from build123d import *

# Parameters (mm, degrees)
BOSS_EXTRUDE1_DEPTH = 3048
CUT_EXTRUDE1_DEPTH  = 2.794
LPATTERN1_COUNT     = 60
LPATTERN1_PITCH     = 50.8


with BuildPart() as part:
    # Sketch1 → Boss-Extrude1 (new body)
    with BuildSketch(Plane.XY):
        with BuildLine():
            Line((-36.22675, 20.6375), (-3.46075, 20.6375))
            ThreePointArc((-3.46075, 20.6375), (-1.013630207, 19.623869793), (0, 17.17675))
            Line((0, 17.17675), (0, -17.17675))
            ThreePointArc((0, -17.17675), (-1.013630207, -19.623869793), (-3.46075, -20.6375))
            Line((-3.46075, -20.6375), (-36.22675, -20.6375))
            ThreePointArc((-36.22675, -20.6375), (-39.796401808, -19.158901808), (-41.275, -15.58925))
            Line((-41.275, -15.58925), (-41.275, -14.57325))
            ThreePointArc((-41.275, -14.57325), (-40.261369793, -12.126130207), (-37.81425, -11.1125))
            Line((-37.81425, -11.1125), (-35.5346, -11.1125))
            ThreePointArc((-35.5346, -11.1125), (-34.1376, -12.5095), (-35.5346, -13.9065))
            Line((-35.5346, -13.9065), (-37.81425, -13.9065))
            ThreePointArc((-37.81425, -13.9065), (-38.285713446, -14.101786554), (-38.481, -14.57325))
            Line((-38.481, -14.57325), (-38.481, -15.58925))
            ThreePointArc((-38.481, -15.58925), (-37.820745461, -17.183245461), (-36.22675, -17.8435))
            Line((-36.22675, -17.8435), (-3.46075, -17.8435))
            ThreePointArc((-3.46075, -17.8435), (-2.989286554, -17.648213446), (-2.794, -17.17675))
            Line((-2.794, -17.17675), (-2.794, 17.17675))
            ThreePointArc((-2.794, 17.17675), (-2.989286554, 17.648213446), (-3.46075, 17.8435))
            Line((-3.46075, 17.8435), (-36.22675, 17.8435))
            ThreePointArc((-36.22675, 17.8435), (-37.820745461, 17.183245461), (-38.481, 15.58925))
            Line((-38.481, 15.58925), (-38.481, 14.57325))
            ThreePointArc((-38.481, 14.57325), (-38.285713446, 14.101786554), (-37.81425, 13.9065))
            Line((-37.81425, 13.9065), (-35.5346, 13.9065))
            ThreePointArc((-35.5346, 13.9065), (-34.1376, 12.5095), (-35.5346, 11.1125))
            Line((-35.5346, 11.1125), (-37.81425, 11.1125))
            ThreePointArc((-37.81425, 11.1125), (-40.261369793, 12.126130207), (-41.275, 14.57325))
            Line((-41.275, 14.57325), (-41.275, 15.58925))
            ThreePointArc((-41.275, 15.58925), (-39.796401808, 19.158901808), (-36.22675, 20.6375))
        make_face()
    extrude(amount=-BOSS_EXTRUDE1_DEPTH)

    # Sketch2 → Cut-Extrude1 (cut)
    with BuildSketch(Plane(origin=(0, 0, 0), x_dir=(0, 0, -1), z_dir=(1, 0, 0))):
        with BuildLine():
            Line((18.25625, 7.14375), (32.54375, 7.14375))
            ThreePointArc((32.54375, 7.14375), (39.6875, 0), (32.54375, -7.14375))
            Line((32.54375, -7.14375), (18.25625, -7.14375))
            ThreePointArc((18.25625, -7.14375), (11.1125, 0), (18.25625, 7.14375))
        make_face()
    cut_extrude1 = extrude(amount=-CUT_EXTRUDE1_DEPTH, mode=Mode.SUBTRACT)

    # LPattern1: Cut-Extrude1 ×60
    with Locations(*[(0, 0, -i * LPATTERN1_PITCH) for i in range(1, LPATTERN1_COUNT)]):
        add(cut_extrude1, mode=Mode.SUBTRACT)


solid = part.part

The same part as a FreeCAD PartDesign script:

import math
import FreeCAD as App
import Part
import Sketcher
Q = App.Units.Quantity

doc = App.newDocument("Part")
body = doc.addObject("PartDesign::Body", "Body")

# Sketch on XY plane
sketch1 = body.newObject("Sketcher::SketchObject", "Sketch")
sketch1.AttachmentSupport = (doc.getObject("XY_Plane"), [""])
sketch1.MapMode = "FlatFace"
sketch1.addGeometry([
    Part.LineSegment(App.Vector(-3.5, 20.6, 0), App.Vector(-36.2, 20.6, 0)),  # 0
    Part.ArcOfCircle(Part.Circle(App.Vector(-36.2, 15.6, 0), App.Vector(0, 0, 1), 5), math.radians(90), math.radians(180)),  # 1
    Part.LineSegment(App.Vector(-41.3, 15.6, 0), App.Vector(-41.3, 14.6, 0)),  # 2
    Part.ArcOfCircle(Part.Circle(App.Vector(-37.8, 14.6, 0), App.Vector(0, 0, 1), 3.5), math.radians(180), math.radians(270)),  # 3
    Part.LineSegment(App.Vector(-37.8, 11.1, 0), App.Vector(-35.5, 11.1, 0)),  # 4
    Part.ArcOfCircle(Part.Circle(App.Vector(-35.5, 12.5, 0), App.Vector(0, 0, 1), 1.4), math.radians(-90), math.radians(90)),  # 5
    Part.LineSegment(App.Vector(-35.5, 13.9, 0), App.Vector(-37.8, 13.9, 0)),  # 6
    Part.ArcOfCircle(Part.Circle(App.Vector(-37.8, 14.6, 0), App.Vector(0, 0, 1), 0.7), math.radians(-180), math.radians(-90)),  # 7
    Part.LineSegment(App.Vector(-38.5, 14.6, 0), App.Vector(-38.5, 15.6, 0)),  # 8
    Part.ArcOfCircle(Part.Circle(App.Vector(-36.2, 15.6, 0), App.Vector(0, 0, 1), 2.3), math.radians(90), math.radians(180)),  # 9
    Part.LineSegment(App.Vector(-36.2, 17.8, 0), App.Vector(-3.5, 17.8, 0)),  # 10
    Part.ArcOfCircle(Part.Circle(App.Vector(-3.5, 17.2, 0), App.Vector(0, 0, 1), 0.7), math.radians(0), math.radians(90)),  # 11
    Part.LineSegment(App.Vector(-2.8, 17.2, 0), App.Vector(-2.8, -17.2, 0)),  # 12
    Part.ArcOfCircle(Part.Circle(App.Vector(-3.5, -17.2, 0), App.Vector(0, 0, 1), 0.7), math.radians(-90), math.radians(0)),  # 13
    Part.LineSegment(App.Vector(-3.5, -17.8, 0), App.Vector(-36.2, -17.8, 0)),  # 14
    Part.ArcOfCircle(Part.Circle(App.Vector(-36.2, -15.6, 0), App.Vector(0, 0, 1), 2.3), math.radians(-180), math.radians(-90)),  # 15
    Part.LineSegment(App.Vector(-38.5, -15.6, 0), App.Vector(-38.5, -14.6, 0)),  # 16
    Part.ArcOfCircle(Part.Circle(App.Vector(-37.8, -14.6, 0), App.Vector(0, 0, 1), 0.7), math.radians(90), math.radians(180)),  # 17
    Part.LineSegment(App.Vector(-37.8, -13.9, 0), App.Vector(-35.5, -13.9, 0)),  # 18
    Part.ArcOfCircle(Part.Circle(App.Vector(-35.5, -12.5, 0), App.Vector(0, 0, 1), 1.4), math.radians(-90), math.radians(90)),  # 19
    Part.LineSegment(App.Vector(-35.5, -11.1, 0), App.Vector(-37.8, -11.1, 0)),  # 20
    Part.ArcOfCircle(Part.Circle(App.Vector(-37.8, -14.6, 0), App.Vector(0, 0, 1), 3.5), math.radians(90), math.radians(180)),  # 21
    Part.LineSegment(App.Vector(-41.3, -14.6, 0), App.Vector(-41.3, -15.6, 0)),  # 22
    Part.ArcOfCircle(Part.Circle(App.Vector(-36.2, -15.6, 0), App.Vector(0, 0, 1), 5), math.radians(180), math.radians(270)),  # 23
    Part.LineSegment(App.Vector(-36.2, -20.6, 0), App.Vector(-3.5, -20.6, 0)),  # 24
    Part.ArcOfCircle(Part.Circle(App.Vector(-3.5, -17.2, 0), App.Vector(0, 0, 1), 3.5), math.radians(-90), math.radians(0)),  # 25
    Part.LineSegment(App.Vector(0, -17.2, 0), App.Vector(0, 17.2, 0)),  # 26
    Part.ArcOfCircle(Part.Circle(App.Vector(-3.5, 17.2, 0), App.Vector(0, 0, 1), 3.5), math.radians(0), math.radians(90)),  # 27
], False)
sketch1.addConstraint([
    Sketcher.Constraint("Tangent", 0, 2, 1, 1),
    Sketcher.Constraint("Tangent", 1, 2, 2, 1),
    Sketcher.Constraint("Tangent", 2, 2, 3, 1),
    Sketcher.Constraint("Tangent", 3, 2, 4, 1),
    Sketcher.Constraint("Tangent", 4, 2, 5, 1),
    Sketcher.Constraint("Tangent", 5, 2, 6, 1),
    Sketcher.Constraint("Tangent", 6, 2, 7, 2),
    Sketcher.Constraint("Tangent", 7, 1, 8, 1),
    Sketcher.Constraint("Tangent", 8, 2, 9, 2),
    Sketcher.Constraint("Tangent", 9, 1, 10, 1),
    Sketcher.Constraint("Tangent", 10, 2, 11, 2),
    Sketcher.Constraint("Tangent", 11, 1, 12, 1),
    Sketcher.Constraint("Tangent", 12, 2, 13, 2),
    Sketcher.Constraint("Tangent", 13, 1, 14, 1),
    Sketcher.Constraint("Tangent", 14, 2, 15, 2),
    Sketcher.Constraint("Tangent", 15, 1, 16, 1),
    Sketcher.Constraint("Tangent", 16, 2, 17, 2),
    Sketcher.Constraint("Tangent", 17, 1, 18, 1),
    Sketcher.Constraint("Tangent", 18, 2, 19, 1),
    Sketcher.Constraint("Tangent", 19, 2, 20, 1),
    Sketcher.Constraint("Tangent", 20, 2, 21, 1),
    Sketcher.Constraint("Tangent", 21, 2, 22, 1),
    Sketcher.Constraint("Tangent", 22, 2, 23, 1),
    Sketcher.Constraint("Tangent", 23, 2, 24, 1),
    Sketcher.Constraint("Tangent", 24, 2, 25, 1),
    Sketcher.Constraint("Tangent", 25, 2, 26, 1),
    Sketcher.Constraint("Tangent", 26, 2, 27, 1),
    Sketcher.Constraint("Tangent", 27, 2, 0, 1),
    Sketcher.Constraint("Horizontal", 0),
    Sketcher.Constraint("Vertical", 2),
    Sketcher.Constraint("Horizontal", 4),
    Sketcher.Constraint("Horizontal", 6),
    Sketcher.Constraint("Vertical", 8),
    Sketcher.Constraint("Horizontal", 10),
    Sketcher.Constraint("Vertical", 12),
    Sketcher.Constraint("Horizontal", 14),
    Sketcher.Constraint("Vertical", 16),
    Sketcher.Constraint("Horizontal", 18),
    Sketcher.Constraint("Horizontal", 20),
    Sketcher.Constraint("Vertical", 22),
    Sketcher.Constraint("Horizontal", 24),
    Sketcher.Constraint("Vertical", 26),
    Sketcher.Constraint("Coincident", 7, 3, 3, 3),
    Sketcher.Constraint("Coincident", 9, 3, 1, 3),
    Sketcher.Constraint("Coincident", 21, 3, 17, 3),
    Sketcher.Constraint("Coincident", 23, 3, 15, 3),
    Sketcher.Constraint("Coincident", 25, 3, 13, 3),
    Sketcher.Constraint("Coincident", 27, 3, 11, 3),
    Sketcher.Constraint("Equal", 7, 11),
    Sketcher.Constraint("Equal", 11, 13),
    Sketcher.Constraint("Equal", 9, 15),
    Sketcher.Constraint("Equal", 13, 17),
    Sketcher.Constraint("Symmetric", 25, 2, 26, 2, -1, 1),
    Sketcher.Constraint("Symmetric", 3, 3, 17, 3, -1),
    Sketcher.Constraint("Vertical", 5, 3, 19, 3),
    Sketcher.Constraint("Radius", 5, Q("0.055 in")),
    Sketcher.Constraint("DistanceX", 0, 2, 0, 1, Q("1.29 in")),
    Sketcher.Constraint("DistanceY", 2, 2, 2, 1, Q("0.04 in")),
    Sketcher.Constraint("DistanceY", 13, 3, 9, 3, Q("1.29 in")),
    Sketcher.Constraint("DistanceY", 5, 3, 0, 2, Q("0.32 in")),
    Sketcher.Constraint("DistanceY", 12, 2, 12, 1, Q("1.3525 in")),
    Sketcher.Constraint("DistanceX", 5, 3, -1, 1, Q("1.399 in")),
])
pad1 = body.newObject("PartDesign::Pad", "Pad")
pad1.Profile = sketch1
pad1.Length = Q("120 in")
pad1.Reversed = True

# Sketch on YZ plane
sketch2 = body.newObject("Sketcher::SketchObject", "Sketch001")
sketch2.AttachmentSupport = (doc.getObject("YZ_Plane"), [""])
sketch2.MapMode = "FlatFace"
sketch2.addGeometry([
    Part.LineSegment(App.Vector(7, -33, 0), App.Vector(7, -18, 0)),
    Part.ArcOfCircle(Part.Circle(App.Vector(0, -18, 0), App.Vector(0, 0, 1), 7), math.radians(0), math.radians(180)),
    Part.LineSegment(App.Vector(-7, -18, 0), App.Vector(-7, -33, 0)),
    Part.ArcOfCircle(Part.Circle(App.Vector(0, -33, 0), App.Vector(0, 0, 1), 7), math.radians(180), math.radians(360)),
], False)
sketch2.addConstraint([
    Sketcher.Constraint("Tangent", 0, 2, 1, 1),
    Sketcher.Constraint("Tangent", 1, 2, 2, 1),
    Sketcher.Constraint("Tangent", 2, 2, 3, 1),
    Sketcher.Constraint("Tangent", 3, 2, 0, 1),
    Sketcher.Constraint("Vertical", 0),
    Sketcher.Constraint("Vertical", 2),
    Sketcher.Constraint("PointOnObject", 1, 3, -2),
    Sketcher.Constraint("Radius", 1, Q("0.28125 in")),
    Sketcher.Constraint("DistanceY", 0, 1, 0, 2, Q("0.5625 in")),
    Sketcher.Constraint("DistanceY", 1, 3, -1, 1, Q("0.71875 in")),
])
pocket1 = body.newObject("PartDesign::Pocket", "Pocket")
pocket1.Profile = sketch2
pocket1.Length = Q("0.11 in")
doc.recompute()

linearpattern = body.newObject("PartDesign::LinearPattern", "LinearPattern")
linearpattern.Originals = [pocket1]
linearpattern.Direction = (doc.getObject("Z_Axis"), [""])
linearpattern.Mode = "offset"
linearpattern.Offset = Q("2 in")
linearpattern.Occurrences = 60
linearpattern.Reversed = True
body.Tip = linearpattern

doc.recompute()
